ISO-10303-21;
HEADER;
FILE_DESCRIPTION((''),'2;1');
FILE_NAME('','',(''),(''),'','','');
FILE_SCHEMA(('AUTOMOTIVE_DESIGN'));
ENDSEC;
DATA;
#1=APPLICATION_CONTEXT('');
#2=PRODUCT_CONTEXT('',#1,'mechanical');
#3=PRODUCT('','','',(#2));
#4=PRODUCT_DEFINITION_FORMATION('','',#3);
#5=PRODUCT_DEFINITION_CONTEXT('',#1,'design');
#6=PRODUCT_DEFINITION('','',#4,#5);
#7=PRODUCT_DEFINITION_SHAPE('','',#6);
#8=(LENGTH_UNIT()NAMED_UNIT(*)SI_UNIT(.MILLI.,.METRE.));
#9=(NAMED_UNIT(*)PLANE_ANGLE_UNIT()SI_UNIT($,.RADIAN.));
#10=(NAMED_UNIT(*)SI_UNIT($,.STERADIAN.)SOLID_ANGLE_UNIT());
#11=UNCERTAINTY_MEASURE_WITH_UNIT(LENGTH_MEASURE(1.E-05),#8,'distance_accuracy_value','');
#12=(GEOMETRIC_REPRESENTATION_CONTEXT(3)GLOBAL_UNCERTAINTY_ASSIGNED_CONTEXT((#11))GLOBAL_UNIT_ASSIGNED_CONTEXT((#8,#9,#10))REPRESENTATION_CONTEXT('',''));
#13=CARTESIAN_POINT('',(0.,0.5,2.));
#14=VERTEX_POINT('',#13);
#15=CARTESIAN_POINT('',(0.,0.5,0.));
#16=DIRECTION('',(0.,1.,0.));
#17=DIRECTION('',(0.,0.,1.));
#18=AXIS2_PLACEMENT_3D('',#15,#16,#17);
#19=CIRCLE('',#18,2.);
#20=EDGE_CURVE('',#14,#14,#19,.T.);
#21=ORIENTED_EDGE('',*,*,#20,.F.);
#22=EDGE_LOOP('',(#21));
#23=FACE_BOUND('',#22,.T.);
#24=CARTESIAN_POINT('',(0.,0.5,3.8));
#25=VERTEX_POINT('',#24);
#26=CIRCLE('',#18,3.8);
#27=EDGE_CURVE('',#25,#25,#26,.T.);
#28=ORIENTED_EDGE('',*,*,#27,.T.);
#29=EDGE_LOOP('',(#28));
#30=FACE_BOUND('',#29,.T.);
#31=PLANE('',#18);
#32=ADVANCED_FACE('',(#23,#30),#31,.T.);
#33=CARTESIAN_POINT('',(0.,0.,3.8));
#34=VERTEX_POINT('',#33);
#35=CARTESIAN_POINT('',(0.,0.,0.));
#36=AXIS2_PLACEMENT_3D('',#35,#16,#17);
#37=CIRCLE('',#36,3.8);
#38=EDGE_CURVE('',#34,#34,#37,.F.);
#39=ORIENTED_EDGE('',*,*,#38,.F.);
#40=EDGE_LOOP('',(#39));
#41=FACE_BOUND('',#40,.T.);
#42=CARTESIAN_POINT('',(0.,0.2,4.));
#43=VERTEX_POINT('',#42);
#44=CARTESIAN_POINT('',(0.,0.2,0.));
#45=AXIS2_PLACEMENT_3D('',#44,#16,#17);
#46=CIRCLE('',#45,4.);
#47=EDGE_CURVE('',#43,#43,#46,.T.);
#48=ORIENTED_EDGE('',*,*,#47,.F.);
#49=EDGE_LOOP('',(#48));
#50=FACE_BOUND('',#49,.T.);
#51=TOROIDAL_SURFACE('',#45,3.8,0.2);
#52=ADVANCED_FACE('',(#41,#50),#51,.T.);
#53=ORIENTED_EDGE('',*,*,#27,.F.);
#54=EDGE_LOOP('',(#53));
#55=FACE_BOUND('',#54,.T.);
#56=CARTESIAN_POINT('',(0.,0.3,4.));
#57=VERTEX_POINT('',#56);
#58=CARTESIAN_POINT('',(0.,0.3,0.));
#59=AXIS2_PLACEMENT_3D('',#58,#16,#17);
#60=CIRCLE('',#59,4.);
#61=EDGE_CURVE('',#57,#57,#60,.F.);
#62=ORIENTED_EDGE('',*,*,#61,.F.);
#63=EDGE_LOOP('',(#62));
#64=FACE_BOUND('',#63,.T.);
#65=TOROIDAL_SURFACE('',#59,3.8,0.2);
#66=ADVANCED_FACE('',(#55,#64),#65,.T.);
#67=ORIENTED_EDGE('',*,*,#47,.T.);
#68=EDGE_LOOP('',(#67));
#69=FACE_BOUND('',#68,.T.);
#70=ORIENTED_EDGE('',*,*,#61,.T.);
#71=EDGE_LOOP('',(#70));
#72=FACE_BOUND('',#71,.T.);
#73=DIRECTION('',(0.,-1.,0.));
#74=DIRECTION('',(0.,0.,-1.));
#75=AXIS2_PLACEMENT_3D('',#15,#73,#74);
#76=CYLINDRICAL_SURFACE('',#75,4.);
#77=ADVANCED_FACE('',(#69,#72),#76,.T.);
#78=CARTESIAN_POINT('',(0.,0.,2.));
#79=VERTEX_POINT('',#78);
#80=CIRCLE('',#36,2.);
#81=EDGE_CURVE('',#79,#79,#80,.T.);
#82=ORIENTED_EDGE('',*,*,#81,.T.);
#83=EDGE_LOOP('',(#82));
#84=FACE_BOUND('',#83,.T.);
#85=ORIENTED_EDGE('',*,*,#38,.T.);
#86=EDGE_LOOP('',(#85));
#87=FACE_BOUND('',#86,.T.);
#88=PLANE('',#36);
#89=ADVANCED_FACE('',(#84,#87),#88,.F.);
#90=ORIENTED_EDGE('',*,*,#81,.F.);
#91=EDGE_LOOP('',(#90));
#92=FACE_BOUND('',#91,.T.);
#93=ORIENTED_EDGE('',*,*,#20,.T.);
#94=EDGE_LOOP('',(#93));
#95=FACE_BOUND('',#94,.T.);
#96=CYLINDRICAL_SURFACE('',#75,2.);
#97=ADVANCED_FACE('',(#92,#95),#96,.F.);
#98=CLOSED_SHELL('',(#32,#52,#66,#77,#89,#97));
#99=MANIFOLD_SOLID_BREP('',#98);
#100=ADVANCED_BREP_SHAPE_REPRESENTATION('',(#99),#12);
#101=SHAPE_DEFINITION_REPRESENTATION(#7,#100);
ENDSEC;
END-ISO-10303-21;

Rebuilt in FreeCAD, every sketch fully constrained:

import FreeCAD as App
import Part
import Sketcher

V = App.Vector
Q = App.Units.Quantity


def edges_at(feature, points):
    """Names of the edges that pass closest to the given points."""
    edges = feature.Shape.Edges
    near = lambda p: min(range(len(edges)), key=lambda i: edges[i].distToShape(Part.Vertex(*p))[0])
    return sorted({f"Edge{near(p) + 1}" for p in points})

doc = App.newDocument("Part")
body = doc.addObject("PartDesign::Body", "Body")

# Sketch on XZ plane
sketch1 = body.newObject("Sketcher::SketchObject", "Sketch")
sketch1.AttachmentSupport = (doc.getObject("XZ_Plane"), [""])
sketch1.MapMode = "FlatFace"
sketch1.addGeometry(Part.Circle(V(0, 0, 0), V(0, 0, 1), 4), False)
sketch1.addGeometry(Part.Circle(V(0, 0, 0), V(0, 0, 1), 2), False)
sketch1.addConstraint(Sketcher.Constraint("Coincident", 0, 3, -1, 1))
sketch1.addConstraint(Sketcher.Constraint("Coincident", 1, 3, -1, 1))
sketch1.addConstraint(Sketcher.Constraint("Diameter", 0, Q("8 mm")))
sketch1.addConstraint(Sketcher.Constraint("Diameter", 1, Q("4 mm")))
pad1 = body.newObject("PartDesign::Pad", "Pad")
pad1.Profile = sketch1
pad1.Length = 0.5
pad1.Reversed = True
doc.recompute()

fillet = body.newObject("PartDesign::Fillet", "Fillet")
fillet.Base = (pad1, edges_at(pad1, [(-4, 0.5, 0)]))
fillet.Radius = 0.2
doc.recompute()

fillet2 = body.newObject("PartDesign::Fillet", "Fillet001")
fillet2.Base = (fillet, edges_at(fillet, [(-4, 0, 0)]))
fillet2.Radius = 0.2

doc.recompute()
